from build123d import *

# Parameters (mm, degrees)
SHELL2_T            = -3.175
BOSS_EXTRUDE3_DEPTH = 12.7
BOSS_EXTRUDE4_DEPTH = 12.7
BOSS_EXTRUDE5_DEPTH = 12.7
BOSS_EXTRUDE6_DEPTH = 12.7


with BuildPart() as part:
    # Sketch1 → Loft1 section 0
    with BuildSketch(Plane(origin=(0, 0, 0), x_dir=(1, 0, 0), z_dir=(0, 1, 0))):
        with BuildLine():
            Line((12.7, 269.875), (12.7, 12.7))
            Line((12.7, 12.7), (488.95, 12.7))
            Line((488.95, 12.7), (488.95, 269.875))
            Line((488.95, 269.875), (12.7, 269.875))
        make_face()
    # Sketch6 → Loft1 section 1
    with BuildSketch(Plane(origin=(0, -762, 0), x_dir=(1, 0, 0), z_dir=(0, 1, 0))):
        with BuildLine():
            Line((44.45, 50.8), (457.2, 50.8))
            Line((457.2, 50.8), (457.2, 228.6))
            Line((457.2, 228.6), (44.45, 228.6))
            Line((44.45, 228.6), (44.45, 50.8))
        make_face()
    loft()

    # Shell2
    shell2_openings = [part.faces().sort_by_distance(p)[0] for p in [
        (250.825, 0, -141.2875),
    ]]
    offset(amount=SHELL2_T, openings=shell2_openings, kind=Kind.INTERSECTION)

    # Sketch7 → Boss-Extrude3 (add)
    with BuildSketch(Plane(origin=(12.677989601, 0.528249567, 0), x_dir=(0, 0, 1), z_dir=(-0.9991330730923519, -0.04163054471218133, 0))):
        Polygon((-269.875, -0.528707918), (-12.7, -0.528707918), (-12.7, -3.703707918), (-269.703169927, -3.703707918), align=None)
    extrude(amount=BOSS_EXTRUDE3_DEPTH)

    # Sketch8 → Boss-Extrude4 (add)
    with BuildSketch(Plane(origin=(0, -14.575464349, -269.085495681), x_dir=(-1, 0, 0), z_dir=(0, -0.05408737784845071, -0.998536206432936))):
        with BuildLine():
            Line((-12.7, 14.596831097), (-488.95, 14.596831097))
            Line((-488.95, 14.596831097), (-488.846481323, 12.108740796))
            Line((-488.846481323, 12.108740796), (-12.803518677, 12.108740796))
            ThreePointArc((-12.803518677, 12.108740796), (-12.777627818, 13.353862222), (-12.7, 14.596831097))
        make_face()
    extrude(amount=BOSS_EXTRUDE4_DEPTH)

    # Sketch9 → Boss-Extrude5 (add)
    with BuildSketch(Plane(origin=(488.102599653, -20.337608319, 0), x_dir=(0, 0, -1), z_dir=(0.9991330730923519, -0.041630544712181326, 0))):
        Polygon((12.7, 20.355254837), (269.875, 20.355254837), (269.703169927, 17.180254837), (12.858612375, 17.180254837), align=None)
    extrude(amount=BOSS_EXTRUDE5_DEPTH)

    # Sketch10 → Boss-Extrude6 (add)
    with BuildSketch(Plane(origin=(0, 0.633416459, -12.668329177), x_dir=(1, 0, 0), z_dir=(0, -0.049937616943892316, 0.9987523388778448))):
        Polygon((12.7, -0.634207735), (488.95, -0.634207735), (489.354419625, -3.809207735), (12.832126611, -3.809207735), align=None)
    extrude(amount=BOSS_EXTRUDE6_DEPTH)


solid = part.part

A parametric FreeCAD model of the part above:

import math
import FreeCAD as App
import Part
import Sketcher

V = App.Vector
Q = App.Units.Quantity


def faces_at(feature, points):
    """Names of the faces that lie closest to the given points."""
    faces = feature.Shape.Faces
    near = lambda p: min(range(len(faces)), key=lambda i: faces[i].distToShape(Part.Vertex(*p))[0])
    return sorted({f"Face{near(p) + 1}" for p in points})

doc = App.newDocument("Part")
body = doc.addObject("PartDesign::Body", "Body")

# Sketch on XZ plane
sketch1 = doc.addObject("Sketcher::SketchObject", "Sketch")
body.addObject(sketch1)
sketch1.AttachmentSupport = (doc.XZ_Plane, [""])
sketch1.MapMode = "FlatFace"
sketch1.addGeometry([
    Part.LineSegment(V(13, -270, 0), V(13, -13, 0)),
    Part.LineSegment(V(13, -13, 0), V(489, -13, 0)),
    Part.LineSegment(V(489, -13, 0), V(489, -270, 0)),
    Part.LineSegment(V(489, -270, 0), V(13, -270, 0)),
], False)
sketch1.addConstraint([
    Sketcher.Constraint("Coincident", 0, 2, 1, 1),
    Sketcher.Constraint("Coincident", 1, 2, 2, 1),
    Sketcher.Constraint("Coincident", 2, 2, 3, 1),
    Sketcher.Constraint("Coincident", 3, 2, 0, 1),
    Sketcher.Constraint("Vertical", 0),
    Sketcher.Constraint("Horizontal", 1),
    Sketcher.Constraint("Vertical", 2),
    Sketcher.Constraint("Horizontal", 3),
    Sketcher.Constraint("DistanceX", 1, 1, 1, 2, Q("18.75 in")),
    Sketcher.Constraint("DistanceX", -1, 1, 0, 2, Q("0.5 in")),
    Sketcher.Constraint("DistanceY", 0, 2, -1, 1, Q("0.5 in")),
    Sketcher.Constraint("DistanceY", 0, 1, 0, 2, Q("10.125 in")),
])

# Sketch on XZ plane
sketch2 = doc.addObject("Sketcher::SketchObject", "Sketch001")
body.addObject(sketch2)
sketch2.AttachmentSupport = (doc.XZ_Plane, [""])
sketch2.MapMode = "FlatFace"
sketch2.AttachmentOffset = App.Placement(V(0, 0, 30 * 25.4), App.Rotation())
sketch2.addGeometry([
    Part.LineSegment(V(44, -51, 0), V(457, -51, 0)),
    Part.LineSegment(V(457, -51, 0), V(457, -229, 0)),
    Part.LineSegment(V(457, -229, 0), V(44, -229, 0)),
    Part.LineSegment(V(44, -229, 0), V(44, -51, 0)),
], False)
sketch2.addConstraint([
    Sketcher.Constraint("Coincident", 0, 2, 1, 1),
    Sketcher.Constraint("Coincident", 1, 2, 2, 1),
    Sketcher.Constraint("Coincident", 2, 2, 3, 1),
    Sketcher.Constraint("Coincident", 3, 2, 0, 1),
    Sketcher.Constraint("Horizontal", 0),
    Sketcher.Constraint("Vertical", 1),
    Sketcher.Constraint("Horizontal", 2),
    Sketcher.Constraint("Vertical", 3),
    Sketcher.Constraint("DistanceY", 1, 2, 1, 1, Q("7 in")),
    Sketcher.Constraint("DistanceX", -1, 1, 0, 2, Q("18 in")),
    Sketcher.Constraint("DistanceY", 0, 2, -1, 1, Q("2 in")),
    Sketcher.Constraint("DistanceX", 0, 1, 0, 2, Q("16.25 in")),
])

additiveloft = doc.addObject("PartDesign::AdditiveLoft", "AdditiveLoft")
body.addObject(additiveloft)
additiveloft.Profile = sketch1
additiveloft.Sections = [sketch2]
doc.recompute()

thickness = doc.addObject("PartDesign::Thickness", "Thickness")
body.addObject(thickness)
thickness.Base = (additiveloft, faces_at(additiveloft, [(250.825, 0, -141.287)]))
thickness.Value = Q("0.125 in")
thickness.Reversed = True
thickness.Join = "Intersection"

# Sketch on an angled plane
sketch3 = doc.addObject("Sketcher::SketchObject", "Sketch002")
body.addObject(sketch3)
sketch3.Placement = App.Placement(V(12.67799, 0.52825, 0), App.Rotation(V(0, 0, 1), V(-0.041630545, 0.999133073, 0), V(-0.999133073, -0.041630545, 0), "ZXY"))
sketch3.addGeometry([
    Part.LineSegment(V(-12.7, -0.5, 0), V(-269.9, -0.5, 0)),
    Part.LineSegment(V(-269.9, -0.5, 0), V(-269.7, -3.7, 0)),
    Part.LineSegment(V(-269.7, -3.7, 0), V(-12.7, -3.7, 0)),
    Part.LineSegment(V(-12.7, -3.7, 0), V(-12.7, -0.5, 0)),
], False)
sketch3.addConstraint([
    Sketcher.Constraint("Coincident", 0, 2, 1, 1),
    Sketcher.Constraint("Coincident", 1, 2, 2, 1),
    Sketcher.Constraint("Coincident", 2, 2, 3, 1),
    Sketcher.Constraint("Coincident", 3, 2, 0, 1),
    Sketcher.Constraint("Horizontal", 0),
    Sketcher.Constraint("Horizontal", 2),
    Sketcher.Constraint("Vertical", 3),
    Sketcher.Constraint("DistanceX", 2, 2, -1, 1, Q("0.5 in")),
    Sketcher.Constraint("DistanceX", 0, 2, 0, 1, Q("10.125 in")),
    Sketcher.Constraint("DistanceY", 3, 1, 3, 2, Q("0.125 in")),
    Sketcher.Constraint("DistanceX", 2, 1, 2, 2, 257.00317),
    Sketcher.Constraint("DistanceY", 0, 2, -1, 1, 0.528708),
])
pad1 = doc.addObject("PartDesign::Pad", "Pad")
body.addObject(pad1)
pad1.Profile = sketch3
pad1.Length = Q("0.5 in")

# Sketch on an angled plane
sketch4 = doc.addObject("Sketcher::SketchObject", "Sketch003")
body.addObject(sketch4)
sketch4.Placement = App.Placement(V(0, -14.575464, -269.085496), App.Rotation(V(-1, 0, 0), V(0, 0.998536206, -0.054087378), V(0, -0.054087378, -0.998536206), "ZXY"))
sketch4.addGeometry([
    Part.LineSegment(V(-12.7, 14.6, 0), V(-488.9, 14.6, 0)),
    Part.LineSegment(V(-488.9, 14.6, 0), V(-488.8, 12.1, 0)),
    Part.LineSegment(V(-488.8, 12.1, 0), V(-12.8, 12.1, 0)),
    Part.ArcOfCircle(Part.Circle(V(17.1, 12.1, 0), V(0, 0, 1), 30), math.radians(175.24), math.radians(180)),
], False)
sketch4.addConstraint([
    Sketcher.Constraint("Coincident", 0, 2, 1, 1),
    Sketcher.Constraint("Coincident", 1, 2, 2, 1),
    Sketcher.Constraint("Coincident", 2, 2, 3, 2),
    Sketcher.Constraint("Coincident", 3, 1, 0, 1),
    Sketcher.Constraint("Horizontal", 0),
    Sketcher.Constraint("Horizontal", 2),
    Sketcher.Constraint("Horizontal", 3, 3, 1, 2),
    Sketcher.Constraint("DistanceX", 0, 2, 0, 1, Q("18.75 in")),
    Sketcher.Constraint("DistanceX", 3, 1, -1, 1, Q("0.5 in")),
    Sketcher.Constraint("Radius", 3, 29.952611),
    Sketcher.Constraint("DistanceX", 2, 1, 2, 2, 476.042963),
    Sketcher.Constraint("DistanceY", -1, 1, 3, 3, 12.108741),
    Sketcher.Constraint("DistanceY", -1, 1, 0, 2, 14.596831),
])
pad2 = doc.addObject("PartDesign::Pad", "Pad001")
body.addObject(pad2)
pad2.Profile = sketch4
pad2.Length = Q("0.5 in")

# Sketch on an angled plane
sketch5 = doc.addObject("Sketcher::SketchObject", "Sketch004")
body.addObject(sketch5)
sketch5.Placement = App.Placement(V(488.1026, -20.337608, 0), App.Rotation(V(0, 0, -1), V(0.041630545, 0.999133073, 0), V(0.999133073, -0.041630545, 0), "ZXY"))
sketch5.addGeometry([
    Part.LineSegment(V(269.9, 20.4, 0), V(12.7, 20.4, 0)),
    Part.LineSegment(V(12.7, 20.4, 0), V(12.9, 17.2, 0)),
    Part.LineSegment(V(12.9, 17.2, 0), V(269.7, 17.2, 0)),
    Part.LineSegment(V(269.7, 17.2, 0), V(269.9, 20.4, 0)),
], False)
sketch5.addConstraint([
    Sketcher.Constraint("Coincident", 0, 2, 1, 1),
    Sketcher.Constraint("Coincident", 1, 2, 2, 1),
    Sketcher.Constraint("Coincident", 2, 2, 3, 1),
    Sketcher.Constraint("Coincident", 3, 2, 0, 1),
    Sketcher.Constraint("Horizontal", 0),
    Sketcher.Constraint("Horizontal", 2),
    Sketcher.Constraint("DistanceX", -1, 1, 0, 2, Q("0.5 in")),
    Sketcher.Constraint("DistanceX", 0, 2, 0, 1, Q("10.125 in")),
    Sketcher.Constraint("DistanceY", 1, 2, 0, 2, Q("0.125 in")),
    Sketcher.Constraint("Distance", 1, 3.178959),
    Sketcher.Constraint("DistanceX", 2, 1, 2, 2, 256.844558),
    Sketcher.Constraint("DistanceY", -1, 1, 0, 2, 20.355255),
])
pad3 = doc.addObject("PartDesign::Pad", "Pad002")
body.addObject(pad3)
pad3.Profile = sketch5
pad3.Length = Q("0.5 in")

# Sketch on an angled plane
sketch6 = doc.addObject("Sketcher::SketchObject", "Sketch005")
body.addObject(sketch6)
sketch6.Placement = App.Placement(V(0, 0.633416, -12.668329), App.Rotation(V(1, 0, 0), V(0, 0.998752339, 0.049937617), V(0, -0.049937617, 0.998752339), "ZXY"))
sketch6.addGeometry([
    Part.LineSegment(V(488.9, -0.6, 0), V(12.7, -0.6, 0)),
    Part.LineSegment(V(12.7, -0.6, 0), V(12.8, -3.8, 0)),
    Part.LineSegment(V(12.8, -3.8, 0), V(489.4, -3.8, 0)),
    Part.LineSegment(V(489.4, -3.8, 0), V(488.9, -0.6, 0)),
], False)
sketch6.addConstraint([
    Sketcher.Constraint("Coincident", 0, 2, 1, 1),
    Sketcher.Constraint("Coincident", 1, 2, 2, 1),
    Sketcher.Constraint("Coincident", 2, 2, 3, 1),
    Sketcher.Constraint("Coincident", 3, 2, 0, 1),
    Sketcher.Constraint("Horizontal", 0),
    Sketcher.Constraint("Horizontal", 2),
    Sketcher.Constraint("DistanceX", 0, 2, 0, 1, Q("18.75 in")),
    Sketcher.Constraint("DistanceX", -1, 1, 0, 2, Q("0.5 in")),
    Sketcher.Constraint("DistanceY", 1, 2, 0, 2, Q("0.125 in")),
    Sketcher.Constraint("Distance", 1, 3.177748),
    Sketcher.Constraint("DistanceX", 2, 1, 2, 2, 476.522293),
    Sketcher.Constraint("DistanceY", 0, 2, -1, 1, 0.634208),
])
pad4 = doc.addObject("PartDesign::Pad", "Pad003")
body.addObject(pad4)
pad4.Profile = sketch6
pad4.Length = Q("0.5 in")

doc.recompute()
